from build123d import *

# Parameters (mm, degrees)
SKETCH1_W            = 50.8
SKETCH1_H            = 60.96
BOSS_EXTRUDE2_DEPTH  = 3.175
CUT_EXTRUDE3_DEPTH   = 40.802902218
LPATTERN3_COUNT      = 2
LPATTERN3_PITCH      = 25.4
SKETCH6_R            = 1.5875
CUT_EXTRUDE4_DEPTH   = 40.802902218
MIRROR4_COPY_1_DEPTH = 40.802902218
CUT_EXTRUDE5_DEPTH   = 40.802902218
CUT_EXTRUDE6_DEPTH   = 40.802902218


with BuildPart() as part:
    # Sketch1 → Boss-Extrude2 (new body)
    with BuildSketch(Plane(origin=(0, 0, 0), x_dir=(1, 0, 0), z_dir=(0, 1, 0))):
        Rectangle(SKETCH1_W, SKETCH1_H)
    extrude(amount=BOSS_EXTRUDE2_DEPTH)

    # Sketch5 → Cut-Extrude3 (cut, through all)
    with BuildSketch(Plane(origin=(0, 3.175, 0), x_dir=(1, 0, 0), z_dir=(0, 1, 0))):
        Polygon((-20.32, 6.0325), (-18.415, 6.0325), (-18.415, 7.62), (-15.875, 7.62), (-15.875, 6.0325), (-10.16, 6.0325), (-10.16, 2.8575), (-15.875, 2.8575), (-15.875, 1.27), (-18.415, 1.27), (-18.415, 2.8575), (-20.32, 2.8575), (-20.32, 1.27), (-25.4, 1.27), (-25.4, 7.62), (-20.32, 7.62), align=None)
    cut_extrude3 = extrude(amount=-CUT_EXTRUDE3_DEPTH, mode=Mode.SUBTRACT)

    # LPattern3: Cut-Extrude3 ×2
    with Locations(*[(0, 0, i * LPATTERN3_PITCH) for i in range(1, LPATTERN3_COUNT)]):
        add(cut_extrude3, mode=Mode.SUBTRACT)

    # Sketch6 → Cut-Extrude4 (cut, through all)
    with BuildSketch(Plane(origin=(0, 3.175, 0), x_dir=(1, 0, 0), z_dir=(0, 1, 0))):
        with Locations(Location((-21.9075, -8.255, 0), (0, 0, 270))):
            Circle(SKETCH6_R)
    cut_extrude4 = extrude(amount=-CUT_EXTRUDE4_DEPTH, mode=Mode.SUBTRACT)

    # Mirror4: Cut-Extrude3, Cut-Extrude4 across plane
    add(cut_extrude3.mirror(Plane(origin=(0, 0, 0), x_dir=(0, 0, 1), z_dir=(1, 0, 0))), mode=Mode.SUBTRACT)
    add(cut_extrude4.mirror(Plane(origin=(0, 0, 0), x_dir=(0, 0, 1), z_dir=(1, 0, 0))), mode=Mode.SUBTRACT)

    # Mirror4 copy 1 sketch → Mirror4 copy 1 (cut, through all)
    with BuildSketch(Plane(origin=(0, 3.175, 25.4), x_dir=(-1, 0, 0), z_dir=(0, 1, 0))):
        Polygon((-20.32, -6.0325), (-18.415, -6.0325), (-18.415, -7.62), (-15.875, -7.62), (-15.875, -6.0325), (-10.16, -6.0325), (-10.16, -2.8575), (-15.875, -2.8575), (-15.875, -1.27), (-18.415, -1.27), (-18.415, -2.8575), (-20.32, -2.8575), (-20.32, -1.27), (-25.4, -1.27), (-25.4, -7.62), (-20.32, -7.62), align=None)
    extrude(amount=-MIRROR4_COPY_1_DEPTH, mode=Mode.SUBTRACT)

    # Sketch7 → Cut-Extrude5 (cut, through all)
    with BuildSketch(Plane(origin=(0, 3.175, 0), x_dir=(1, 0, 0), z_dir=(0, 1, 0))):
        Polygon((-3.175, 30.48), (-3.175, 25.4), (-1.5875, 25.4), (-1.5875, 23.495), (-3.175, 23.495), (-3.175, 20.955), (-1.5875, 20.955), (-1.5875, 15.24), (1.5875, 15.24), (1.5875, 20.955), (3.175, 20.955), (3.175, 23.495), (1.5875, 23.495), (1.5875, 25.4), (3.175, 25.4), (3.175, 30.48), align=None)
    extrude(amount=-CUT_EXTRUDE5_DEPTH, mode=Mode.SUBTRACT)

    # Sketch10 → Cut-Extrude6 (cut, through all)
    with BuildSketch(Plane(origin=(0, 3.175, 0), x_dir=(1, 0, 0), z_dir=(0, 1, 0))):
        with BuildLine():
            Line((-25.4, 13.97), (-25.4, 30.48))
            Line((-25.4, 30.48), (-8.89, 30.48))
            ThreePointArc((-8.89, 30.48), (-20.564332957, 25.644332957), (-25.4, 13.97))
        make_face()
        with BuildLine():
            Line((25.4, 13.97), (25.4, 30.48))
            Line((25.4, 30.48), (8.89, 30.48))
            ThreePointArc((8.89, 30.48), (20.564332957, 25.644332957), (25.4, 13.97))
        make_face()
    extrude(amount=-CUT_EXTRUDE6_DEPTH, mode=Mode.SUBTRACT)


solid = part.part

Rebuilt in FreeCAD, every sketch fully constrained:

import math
import FreeCAD as App
import Part
import Sketcher
from FreeCAD import Vector
Q = App.Units.Quantity


def add_polygon(sketch, points):
    """Adds a closed chain of lines whose ends are joined by coincident constraints."""
    first, n = sketch.GeometryCount, len(points)
    for a, b in zip(points, points[1:] + points[:1]):
        sketch.addGeometry(Part.LineSegment(App.Vector(*a, 0), App.Vector(*b, 0)), False)
    for i in range(n):
        sketch.addConstraint(Sketcher.Constraint("Coincident", first + i, 2, first + (i + 1) % n, 1))

doc = App.newDocument("Part")
body = doc.addObject("PartDesign::Body", "Body")

# Sketch on XZ plane
sketch1 = body.newObject("Sketcher::SketchObject", "Sketch")
sketch1.AttachmentSupport = (doc.getObject("XZ_Plane"), [""])
sketch1.MapMode = "FlatFace"
add_polygon(sketch1, [(-25, -30), (-25, 30), (25, 30), (25, -30)])  # lines 0-3
sketch1.addConstraint([
    Sketcher.Constraint("Vertical", 0),
    Sketcher.Constraint("Horizontal", 1),
    Sketcher.Constraint("Vertical", 2),
    Sketcher.Constraint("Horizontal", 3),
    Sketcher.Constraint("Symmetric", 0, 2, 2, 2, -1, 1),
    Sketcher.Constraint("DistanceX", 1, 1, 1, 2, Q("2 in")),
    Sketcher.Constraint("DistanceY", 0, 1, 0, 2, Q("2.4 in")),
])
pad1 = body.newObject("PartDesign::Pad", "Pad")
pad1.Profile = sketch1
pad1.Length = Q("0.125 in")
pad1.Reversed = True

# Sketch on XZ plane
sketch2 = body.newObject("Sketcher::SketchObject", "Sketch001")
sketch2.AttachmentSupport = (doc.getObject("XZ_Plane"), [""])
sketch2.MapMode = "FlatFace"
sketch2.AttachmentOffset = App.Placement(Vector(0, 0, -0.125 * 25.4), App.Rotation())
add_polygon(sketch2, [(-18.4, -6), (-20.3, -6), (-20.3, -7.6), (-25.4, -7.6), (-25.4, -1.3), (-20.3, -1.3), (-20.3, -2.9), (-18.4, -2.9), (-18.4, -1.3), (-15.9, -1.3), (-15.9, -2.9), (-10.2, -2.9), (-10.2, -6), (-15.9, -6), (-15.9, -7.6), (-18.4, -7.6)])  # lines 0-15
sketch2.addConstraint([
    Sketcher.Constraint("Horizontal", 0),
    Sketcher.Constraint("Vertical", 1),
    Sketcher.Constraint("Horizontal", 2),
    Sketcher.Constraint("Vertical", 3),
    Sketcher.Constraint("Horizontal", 4),
    Sketcher.Constraint("Vertical", 5),
    Sketcher.Constraint("Horizontal", 6),
    Sketcher.Constraint("Vertical", 7),
    Sketcher.Constraint("Horizontal", 8),
    Sketcher.Constraint("Vertical", 9),
    Sketcher.Constraint("Horizontal", 10),
    Sketcher.Constraint("Vertical", 11),
    Sketcher.Constraint("Horizontal", 12),
    Sketcher.Constraint("Vertical", 13),
    Sketcher.Constraint("Horizontal", 14),
    Sketcher.Constraint("Vertical", 15),
    Sketcher.Constraint("Horizontal", 4, 2, 7, 2),
    Sketcher.Constraint("Horizontal", 6, 2, 9, 2),
    Sketcher.Constraint("Horizontal", 0, 2, 11, 2),
    Sketcher.Constraint("Horizontal", 2, 2, 13, 2),
    Sketcher.Constraint("Vertical", 1, 2, 4, 2),
    Sketcher.Constraint("Vertical", 9, 2, 12, 2),
    Sketcher.Constraint("Vertical", 7, 2, 14, 2),
    Sketcher.Constraint("Equal", 1, 5),
    Sketcher.Constraint("DistanceX", 2, 2, 2, 1, Q("0.2 in")),
    Sketcher.Constraint("DistanceX", 8, 1, 8, 2, Q("0.1 in")),
    Sketcher.Constraint("DistanceX", 2, 2, -1, 1, Q("1 in")),
    Sketcher.Constraint("DistanceY", 3, 1, 3, 2, Q("0.25 in")),
    Sketcher.Constraint("DistanceY", 1, 2, -1, 1, Q("0.3 in")),
    Sketcher.Constraint("DistanceX", 10, 2, -1, 1, Q("0.4 in")),
    Sketcher.Constraint("DistanceX", 0, 2, 0, 1, Q("0.075 in")),
    Sketcher.Constraint("DistanceY", 1, 2, 1, 1, Q("0.0625 in")),
])
pocket1 = body.newObject("PartDesign::Pocket", "Pocket")
pocket1.Profile = sketch2
pocket1.Type = "ThroughAll"
pocket1.Reversed = True
doc.recompute()

linearpattern = body.newObject("PartDesign::LinearPattern", "LinearPattern")
linearpattern.Originals = [pocket1]
linearpattern.Direction = (doc.getObject("Z_Axis"), [""])
linearpattern.Mode = "offset"
linearpattern.Offset = Q("1 in")
linearpattern.Occurrences = 2
body.Tip = linearpattern

# Sketch on XZ plane
sketch3 = body.newObject("Sketcher::SketchObject", "Sketch002")
sketch3.AttachmentSupport = (doc.getObject("XZ_Plane"), [""])
sketch3.MapMode = "FlatFace"
sketch3.AttachmentOffset = App.Placement(Vector(0, 0, -0.125 * 25.4), App.Rotation())
sketch3.addGeometry(Part.Circle(Vector(-21.9, 8.3, 0), Vector(0, 0, 1), 1.6), False)
sketch3.addConstraint([
    Sketcher.Constraint("Diameter", 0, Q("0.125 in")),
    Sketcher.Constraint("DistanceY", -1, 1, 0, 3, Q("0.325 in")),
    Sketcher.Constraint("DistanceX", 0, 3, -1, 1, Q("0.8625 in")),
])
pocket2 = body.newObject("PartDesign::Pocket", "Pocket001")
pocket2.Profile = sketch3
pocket2.Type = "ThroughAll"
pocket2.Reversed = True
doc.recompute()

mirrored = body.newObject("PartDesign::Mirrored", "Mirrored")
mirrored.Originals = [pocket1, pocket2]
mirrored.MirrorPlane = (doc.getObject("YZ_Plane"), [""])
body.Tip = mirrored

# Sketch on XZ plane
sketch4 = body.newObject("Sketcher::SketchObject", "Sketch003")
sketch4.AttachmentSupport = (doc.getObject("XZ_Plane"), [""])
sketch4.MapMode = "FlatFace"
sketch4.AttachmentOffset = App.Placement(Vector(0, 0, -0.125 * 25.4), App.Rotation())
add_polygon(sketch4, [(20.3, 19.4), (18.4, 19.4), (18.4, 17.8), (15.9, 17.8), (15.9, 19.4), (10.2, 19.4), (10.2, 22.5), (15.9, 22.5), (15.9, 24.1), (18.4, 24.1), (18.4, 22.5), (20.3, 22.5), (20.3, 24.1), (25.4, 24.1), (25.4, 17.8), (20.3, 17.8)])  # lines 0-15
sketch4.addConstraint([
    Sketcher.Constraint("Horizontal", 0),
    Sketcher.Constraint("Vertical", 1),
    Sketcher.Constraint("Horizontal", 2),
    Sketcher.Constraint("Vertical", 3),
    Sketcher.Constraint("Horizontal", 4),
    Sketcher.Constraint("Vertical", 5),
    Sketcher.Constraint("Horizontal", 6),
    Sketcher.Constraint("Vertical", 7),
    Sketcher.Constraint("Horizontal", 8),
    Sketcher.Constraint("Vertical", 9),
    Sketcher.Constraint("Horizontal", 10),
    Sketcher.Constraint("Vertical", 11),
    Sketcher.Constraint("Horizontal", 12),
    Sketcher.Constraint("Vertical", 13),
    Sketcher.Constraint("Horizontal", 14),
    Sketcher.Constraint("Vertical", 15),
    Sketcher.Constraint("Horizontal", 0, 2, 3, 2),
    Sketcher.Constraint("Horizontal", 6, 2, 9, 2),
    Sketcher.Constraint("Horizontal", 8, 2, 11, 2),
    Sketcher.Constraint("Horizontal", 2, 2, 13, 2),
    Sketcher.Constraint("Vertical", 3, 2, 6, 2),
    Sketcher.Constraint("Vertical", 1, 2, 8, 2),
    Sketcher.Constraint("Vertical", 11, 2, 14, 2),
    Sketcher.Constraint("Equal", 3, 7),
    Sketcher.Constraint("DistanceX", 2, 2, 2, 1, Q("0.1 in")),
    Sketcher.Constraint("DistanceX", 12, 1, 12, 2, Q("0.2 in")),
    Sketcher.Constraint("DistanceX", -1, 1, 12, 2, Q("1 in")),
    Sketcher.Constraint("DistanceY", 13, 2, 13, 1, Q("0.25 in")),
    Sketcher.Constraint("DistanceY", -1, 1, 1, 2, Q("0.7 in")),
    Sketcher.Constraint("DistanceX", -1, 1, 4, 2, Q("0.4 in")),
    Sketcher.Constraint("DistanceX", 0, 2, 0, 1, Q("0.075 in")),
    Sketcher.Constraint("DistanceY", 1, 2, 1, 1, Q("0.0625 in")),
])
pocket3 = body.newObject("PartDesign::Pocket", "Pocket002")
pocket3.Profile = sketch4
pocket3.Type = "ThroughAll"
pocket3.Reversed = True

# Sketch on XZ plane
sketch5 = body.newObject("Sketcher::SketchObject", "Sketch004")
sketch5.AttachmentSupport = (doc.getObject("XZ_Plane"), [""])
sketch5.MapMode = "FlatFace"
sketch5.AttachmentOffset = App.Placement(Vector(0, 0, -0.125 * 25.4), App.Rotation())
add_polygon(sketch5, [(-3.2, -30.5), (-3.2, -25.4), (-1.6, -25.4), (-1.6, -23.5), (-3.2, -23.5), (-3.2, -21), (-1.6, -21), (-1.6, -15.2), (1.6, -15.2), (1.6, -21), (3.2, -21), (3.2, -23.5), (1.6, -23.5), (1.6, -25.4), (3.2, -25.4), (3.2, -30.5)])  # lines 0-15
sketch5.addConstraint([
    Sketcher.Constraint("Vertical", 0),
    Sketcher.Constraint("Horizontal", 1),
    Sketcher.Constraint("Vertical", 2),
    Sketcher.Constraint("Horizontal", 3),
    Sketcher.Constraint("Vertical", 4),
    Sketcher.Constraint("Horizontal", 5),
    Sketcher.Constraint("Vertical", 6),
    Sketcher.Constraint("Horizontal", 7),
    Sketcher.Constraint("Vertical", 8),
    Sketcher.Constraint("Horizontal", 9),
    Sketcher.Constraint("Vertical", 10),
    Sketcher.Constraint("Horizontal", 11),
    Sketcher.Constraint("Vertical", 12),
    Sketcher.Constraint("Horizontal", 13),
    Sketcher.Constraint("Vertical", 14),
    Sketcher.Constraint("Horizontal", 15),
    Sketcher.Constraint("Symmetric", 5, 2, 8, 2, -2),
    Sketcher.Constraint("Symmetric", 3, 2, 10, 2, -2),
    Sketcher.Constraint("Symmetric", 1, 2, 12, 2, -2),
    Sketcher.Constraint("Vertical", 0, 2, 3, 2),
    Sketcher.Constraint("Vertical", 2, 2, 5, 2),
    Sketcher.Constraint("Vertical", 10, 2, 13, 2),
    Sketcher.Constraint("DistanceY", 0, 1, 0, 2, Q("0.2 in")),
    Sketcher.Constraint("DistanceY", 4, 1, 4, 2, Q("0.1 in")),
    Sketcher.Constraint("DistanceY", 0, 2, -1, 1, Q("1 in")),
    Sketcher.Constraint("DistanceX", 15, 2, 15, 1, Q("0.25 in")),
    Sketcher.Constraint("DistanceY", 6, 2, -1, 1, Q("0.6 in")),
    Sketcher.Constraint("DistanceX", 1, 1, 1, 2, Q("0.0625 in")),
    Sketcher.Constraint("DistanceY", 2, 1, 2, 2, Q("0.075 in")),
])
pocket4 = body.newObject("PartDesign::Pocket", "Pocket003")
pocket4.Profile = sketch5
pocket4.Type = "ThroughAll"
pocket4.Reversed = True

# Sketch on XZ plane
sketch6 = body.newObject("Sketcher::SketchObject", "Sketch005")
sketch6.AttachmentSupport = (doc.getObject("XZ_Plane"), [""])
sketch6.MapMode = "FlatFace"
sketch6.AttachmentOffset = App.Placement(Vector(0, 0, -0.125 * 25.4), App.Rotation())
sketch6.addGeometry([
    Part.LineSegment(Vector(-25, -30, 0), Vector(-25, -14, 0)),  # 0
    Part.ArcOfCircle(Part.Circle(Vector(-9, -14, 0), Vector(0, 0, 1), 17), math.radians(-180), math.radians(-90)),  # 1
    Part.LineSegment(Vector(-9, -30, 0), Vector(-25, -30, 0)),  # 2
    Part.LineSegment(Vector(25, -14, 0), Vector(25, -30, 0)),  # 3
    Part.LineSegment(Vector(25, -30, 0), Vector(9, -30, 0)),  # 4
    Part.ArcOfCircle(Part.Circle(Vector(9, -14, 0), Vector(0, 0, 1), 17), math.radians(-90), math.radians(0)),  # 5
], False)
sketch6.addConstraint([
    Sketcher.Constraint("Tangent", 0, 2, 1, 1),
    Sketcher.Constraint("Tangent", 1, 2, 2, 1),
    Sketcher.Constraint("Coincident", 2, 2, 0, 1),
    Sketcher.Constraint("Coincident", 3, 2, 4, 1),
    Sketcher.Constraint("Tangent", 4, 2, 5, 1),
    Sketcher.Constraint("Tangent", 5, 2, 3, 1),
    Sketcher.Constraint("Vertical", 0),
    Sketcher.Constraint("Horizontal", 2),
    Sketcher.Constraint("Vertical", 3),
    Sketcher.Constraint("Horizontal", 4),
    Sketcher.Constraint("Equal", 1, 5),
    Sketcher.Constraint("Symmetric", 1, 3, 5, 3, -2),
    Sketcher.Constraint("Radius", 1, Q("0.65 in")),
    Sketcher.Constraint("DistanceX", 0, 2, -1, 1, Q("1 in")),
    Sketcher.Constraint("DistanceY", 1, 2, -1, 1, Q("1.2 in")),
])
pocket5 = body.newObject("PartDesign::Pocket", "Pocket004")
pocket5.Profile = sketch6
pocket5.Type = "ThroughAll"
pocket5.Reversed = True

doc.recompute()
